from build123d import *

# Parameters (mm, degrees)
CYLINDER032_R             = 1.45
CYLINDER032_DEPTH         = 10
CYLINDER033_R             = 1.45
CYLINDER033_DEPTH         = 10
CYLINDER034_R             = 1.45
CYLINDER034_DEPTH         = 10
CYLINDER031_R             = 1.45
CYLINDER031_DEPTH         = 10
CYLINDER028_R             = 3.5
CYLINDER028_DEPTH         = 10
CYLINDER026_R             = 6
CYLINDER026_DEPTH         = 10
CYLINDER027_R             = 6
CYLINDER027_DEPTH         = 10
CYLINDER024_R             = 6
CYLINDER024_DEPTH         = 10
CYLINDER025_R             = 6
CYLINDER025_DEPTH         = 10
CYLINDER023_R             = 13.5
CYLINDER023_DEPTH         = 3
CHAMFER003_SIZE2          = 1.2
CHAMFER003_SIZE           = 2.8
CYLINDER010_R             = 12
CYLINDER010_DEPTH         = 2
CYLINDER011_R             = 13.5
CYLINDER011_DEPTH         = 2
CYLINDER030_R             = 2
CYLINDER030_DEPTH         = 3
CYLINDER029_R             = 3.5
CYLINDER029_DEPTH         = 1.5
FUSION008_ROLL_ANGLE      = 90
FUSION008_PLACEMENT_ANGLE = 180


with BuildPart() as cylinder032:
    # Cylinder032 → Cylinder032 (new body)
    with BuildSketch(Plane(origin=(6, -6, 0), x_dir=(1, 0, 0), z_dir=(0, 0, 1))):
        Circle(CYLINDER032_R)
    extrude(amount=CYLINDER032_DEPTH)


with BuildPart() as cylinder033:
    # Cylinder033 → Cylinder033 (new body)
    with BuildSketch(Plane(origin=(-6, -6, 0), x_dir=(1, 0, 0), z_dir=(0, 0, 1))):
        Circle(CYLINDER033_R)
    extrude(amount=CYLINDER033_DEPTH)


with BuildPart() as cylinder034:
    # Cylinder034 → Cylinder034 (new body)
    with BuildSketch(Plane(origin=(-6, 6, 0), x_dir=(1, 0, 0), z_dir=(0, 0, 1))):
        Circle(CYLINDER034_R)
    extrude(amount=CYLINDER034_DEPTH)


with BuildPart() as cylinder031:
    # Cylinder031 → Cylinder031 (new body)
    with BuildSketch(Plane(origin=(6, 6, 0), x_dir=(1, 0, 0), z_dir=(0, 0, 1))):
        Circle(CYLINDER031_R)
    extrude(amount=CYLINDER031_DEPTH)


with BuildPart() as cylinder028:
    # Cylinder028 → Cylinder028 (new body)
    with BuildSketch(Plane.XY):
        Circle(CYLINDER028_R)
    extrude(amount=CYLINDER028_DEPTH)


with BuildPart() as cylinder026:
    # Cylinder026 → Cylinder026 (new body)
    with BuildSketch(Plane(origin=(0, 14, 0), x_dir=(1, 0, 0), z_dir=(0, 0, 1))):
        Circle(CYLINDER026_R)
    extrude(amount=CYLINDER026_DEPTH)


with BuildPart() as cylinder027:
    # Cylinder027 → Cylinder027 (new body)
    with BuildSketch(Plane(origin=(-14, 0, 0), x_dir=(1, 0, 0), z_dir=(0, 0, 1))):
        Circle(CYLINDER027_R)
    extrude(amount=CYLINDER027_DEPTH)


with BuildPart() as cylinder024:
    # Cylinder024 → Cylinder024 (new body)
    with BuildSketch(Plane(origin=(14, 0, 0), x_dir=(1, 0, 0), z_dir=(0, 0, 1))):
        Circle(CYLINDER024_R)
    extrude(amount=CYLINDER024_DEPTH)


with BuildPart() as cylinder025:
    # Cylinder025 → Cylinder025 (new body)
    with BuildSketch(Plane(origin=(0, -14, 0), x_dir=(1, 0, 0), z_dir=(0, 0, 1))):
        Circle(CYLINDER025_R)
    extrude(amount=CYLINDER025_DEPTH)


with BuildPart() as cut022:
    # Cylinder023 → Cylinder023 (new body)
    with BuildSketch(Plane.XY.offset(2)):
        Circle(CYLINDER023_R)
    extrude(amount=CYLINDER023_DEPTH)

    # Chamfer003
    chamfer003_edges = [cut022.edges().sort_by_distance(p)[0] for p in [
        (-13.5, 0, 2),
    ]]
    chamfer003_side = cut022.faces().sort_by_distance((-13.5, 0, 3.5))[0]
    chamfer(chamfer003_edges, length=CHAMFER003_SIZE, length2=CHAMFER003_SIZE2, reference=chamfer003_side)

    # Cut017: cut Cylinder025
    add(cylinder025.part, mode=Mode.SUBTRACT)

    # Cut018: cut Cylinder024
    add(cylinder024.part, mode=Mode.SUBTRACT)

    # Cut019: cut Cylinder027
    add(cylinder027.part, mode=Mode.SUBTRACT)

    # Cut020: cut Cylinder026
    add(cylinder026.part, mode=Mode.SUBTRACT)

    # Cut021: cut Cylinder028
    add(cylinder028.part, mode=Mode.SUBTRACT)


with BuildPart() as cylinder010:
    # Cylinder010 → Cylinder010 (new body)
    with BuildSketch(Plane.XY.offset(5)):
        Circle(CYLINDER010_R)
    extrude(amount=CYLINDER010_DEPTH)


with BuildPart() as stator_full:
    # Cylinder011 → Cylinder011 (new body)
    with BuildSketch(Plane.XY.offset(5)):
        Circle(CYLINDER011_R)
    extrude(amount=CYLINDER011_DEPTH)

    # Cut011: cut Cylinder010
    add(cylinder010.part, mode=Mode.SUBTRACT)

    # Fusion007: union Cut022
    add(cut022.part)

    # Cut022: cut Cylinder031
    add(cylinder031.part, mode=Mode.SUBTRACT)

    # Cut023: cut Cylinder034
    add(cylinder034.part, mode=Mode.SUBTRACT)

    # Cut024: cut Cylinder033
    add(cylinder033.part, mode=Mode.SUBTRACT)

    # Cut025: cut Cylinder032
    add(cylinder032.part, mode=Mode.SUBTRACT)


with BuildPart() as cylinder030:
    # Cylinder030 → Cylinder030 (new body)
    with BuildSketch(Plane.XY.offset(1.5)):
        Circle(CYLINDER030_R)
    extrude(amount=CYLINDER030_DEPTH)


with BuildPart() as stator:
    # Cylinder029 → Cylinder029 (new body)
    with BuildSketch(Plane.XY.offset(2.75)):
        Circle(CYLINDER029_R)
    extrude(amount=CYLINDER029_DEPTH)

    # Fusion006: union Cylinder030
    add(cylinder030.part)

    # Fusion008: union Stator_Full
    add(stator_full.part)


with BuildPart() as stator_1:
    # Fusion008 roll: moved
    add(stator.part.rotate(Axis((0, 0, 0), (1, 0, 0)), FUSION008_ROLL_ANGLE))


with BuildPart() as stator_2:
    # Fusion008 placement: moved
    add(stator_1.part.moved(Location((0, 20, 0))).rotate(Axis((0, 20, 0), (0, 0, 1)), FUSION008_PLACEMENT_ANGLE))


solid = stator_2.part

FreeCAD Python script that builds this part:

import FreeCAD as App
import Part
import Sketcher


def edges_at(feature, points):
    """Names of the edges that pass closest to the given points."""
    edges = feature.Shape.Edges
    near = lambda p: min(range(len(edges)), key=lambda i: edges[i].distToShape(Part.Vertex(*p))[0])
    return sorted({f"Edge{near(p) + 1}" for p in points})

doc = App.newDocument("Part")
params = doc.addObject("Spreadsheet::Sheet", "Params")
for row, (alias, value) in enumerate([
    ("sketch1_diameter", "2.9 mm"),
    ("pad1_length", "10 mm"),
    ("sketch2_diameter", "2.9 mm"),
    ("pad2_length", "10 mm"),
    ("sketch3_diameter", "2.9 mm"),
    ("pad3_length", "10 mm"),
    ("sketch4_diameter", "2.9 mm"),
    ("pad4_length", "10 mm"),
    ("sketch5_diameter", "7 mm"),
    ("pad5_length", "10 mm"),
    ("sketch6_diameter", "12 mm"),
    ("pad6_length", "10 mm"),
    ("sketch7_diameter", "12 mm"),
    ("pad7_length", "10 mm"),
    ("sketch8_diameter", "12 mm"),
    ("pad8_length", "10 mm"),
    ("sketch9_diameter", "12 mm"),
    ("pad9_length", "10 mm"),
    ("sketch10_diameter", "27 mm"),
    ("pad10_length", "3 mm"),
    ("chamfer_size", "2.8 mm"),
    ("chamfer_size2", "1.2 mm"),
    ("sketch11_diameter", "24 mm"),
    ("pad11_length", "2 mm"),
    ("sketch12_diameter", "27 mm"),
    ("pad12_length", "2 mm"),
    ("sketch13_diameter", "4 mm"),
    ("pad13_length", "3 mm"),
    ("sketch14_diameter", "7 mm"),
    ("pad14_length", "1.5 mm"),
], start=1):
    params.set(f"A{row}", alias)
    params.set(f"B{row}", "=" + value)
    params.setAlias(f"B{row}", alias)

body = doc.addObject("PartDesign::Body", "Body")

sketch1 = body.newObject("Sketcher::SketchObject", "Sketch")
sketch1.AttachmentSupport = (doc.getObject("XY_Plane"), [""])
sketch1.MapMode = "FlatFace"
sketch1.addGeometry(Part.Circle(App.Vector(6, -6, 0), App.Vector(0, 0, 1), 1.45), False)
sketch1.addConstraint([
    Sketcher.Constraint("Diameter", 0, 2.9),
    Sketcher.Constraint("DistanceX", -1, 1, 0, 3, 6.0),
    Sketcher.Constraint("DistanceY", 0, 3, -1, 1, 6.0),
])
sketch1.setExpression("Constraints[0]", "Params.sketch1_diameter")
pad1 = body.newObject("PartDesign::Pad", "Pad")
pad1.Profile = sketch1
pad1.setExpression("Length", "Params.pad1_length")
body2 = doc.addObject("PartDesign::Body", "Body001")

sketch2 = body2.newObject("Sketcher::SketchObject", "Sketch001")
sketch2.AttachmentSupport = (doc.getObject("XY_Plane001"), [""])
sketch2.MapMode = "FlatFace"
sketch2.addGeometry(Part.Circle(App.Vector(-6, -6, 0), App.Vector(0, 0, 1), 1.45), False)
sketch2.addConstraint([
    Sketcher.Constraint("Diameter", 0, 2.9),
    Sketcher.Constraint("DistanceX", 0, 3, -1, 1, 6.0),
    Sketcher.Constraint("DistanceY", 0, 3, -1, 1, 6.0),
])
sketch2.setExpression("Constraints[0]", "Params.sketch2_diameter")
pad2 = body2.newObject("PartDesign::Pad", "Pad001")
pad2.Profile = sketch2
pad2.setExpression("Length", "Params.pad2_length")
body3 = doc.addObject("PartDesign::Body", "Body002")

sketch3 = body3.newObject("Sketcher::SketchObject", "Sketch002")
sketch3.AttachmentSupport = (doc.getObject("XY_Plane002"), [""])
sketch3.MapMode = "FlatFace"
sketch3.addGeometry(Part.Circle(App.Vector(-6, 6, 0), App.Vector(0, 0, 1), 1.45), False)
sketch3.addConstraint([
    Sketcher.Constraint("Diameter", 0, 2.9),
    Sketcher.Constraint("DistanceX", 0, 3, -1, 1, 6.0),
    Sketcher.Constraint("DistanceY", -1, 1, 0, 3, 6.0),
])
sketch3.setExpression("Constraints[0]", "Params.sketch3_diameter")
pad3 = body3.newObject("PartDesign::Pad", "Pad002")
pad3.Profile = sketch3
pad3.setExpression("Length", "Params.pad3_length")
body4 = doc.addObject("PartDesign::Body", "Body003")

sketch4 = body4.newObject("Sketcher::SketchObject", "Sketch003")
sketch4.AttachmentSupport = (doc.getObject("XY_Plane003"), [""])
sketch4.MapMode = "FlatFace"
sketch4.addGeometry(Part.Circle(App.Vector(6, 6, 0), App.Vector(0, 0, 1), 1.45), False)
sketch4.addConstraint([
    Sketcher.Constraint("Diameter", 0, 2.9),
    Sketcher.Constraint("DistanceX", -1, 1, 0, 3, 6.0),
    Sketcher.Constraint("DistanceY", -1, 1, 0, 3, 6.0),
])
sketch4.setExpression("Constraints[0]", "Params.sketch4_diameter")
pad4 = body4.newObject("PartDesign::Pad", "Pad003")
pad4.Profile = sketch4
pad4.setExpression("Length", "Params.pad4_length")
body5 = doc.addObject("PartDesign::Body", "Body004")

sketch5 = body5.newObject("Sketcher::SketchObject", "Sketch004")
sketch5.AttachmentSupport = (doc.getObject("XY_Plane004"), [""])
sketch5.MapMode = "FlatFace"
sketch5.addGeometry(Part.Circle(App.Vector(0, 0, 0), App.Vector(0, 0, 1), 3.5), False)
sketch5.addConstraint([
    Sketcher.Constraint("Coincident", 0, 3, -1, 1),
    Sketcher.Constraint("Diameter", 0, 7.0),
])
sketch5.setExpression("Constraints[1]", "Params.sketch5_diameter")
pad5 = body5.newObject("PartDesign::Pad", "Pad004")
pad5.Profile = sketch5
pad5.setExpression("Length", "Params.pad5_length")
body6 = doc.addObject("PartDesign::Body", "Body005")

sketch6 = body6.newObject("Sketcher::SketchObject", "Sketch005")
sketch6.AttachmentSupport = (doc.getObject("XY_Plane005"), [""])
sketch6.MapMode = "FlatFace"
sketch6.addGeometry(Part.Circle(App.Vector(0, 14, 0), App.Vector(0, 0, 1), 6), False)
sketch6.addConstraint([
    Sketcher.Constraint("PointOnObject", 0, 3, -2),
    Sketcher.Constraint("Diameter", 0, 12.0),
    Sketcher.Constraint("DistanceY", -1, 1, 0, 3, 14.0),
])
sketch6.setExpression("Constraints[1]", "Params.sketch6_diameter")
pad6 = body6.newObject("PartDesign::Pad", "Pad005")
pad6.Profile = sketch6
pad6.setExpression("Length", "Params.pad6_length")
body7 = doc.addObject("PartDesign::Body", "Body006")

sketch7 = body7.newObject("Sketcher::SketchObject", "Sketch006")
sketch7.AttachmentSupport = (doc.getObject("XY_Plane006"), [""])
sketch7.MapMode = "FlatFace"
sketch7.addGeometry(Part.Circle(App.Vector(-14, 0, 0), App.Vector(0, 0, 1), 6), False)
sketch7.addConstraint([
    Sketcher.Constraint("PointOnObject", 0, 3, -1),
    Sketcher.Constraint("Diameter", 0, 12.0),
    Sketcher.Constraint("DistanceX", 0, 3, -1, 1, 14.0),
])
sketch7.setExpression("Constraints[1]", "Params.sketch7_diameter")
pad7 = body7.newObject("PartDesign::Pad", "Pad006")
pad7.Profile = sketch7
pad7.setExpression("Length", "Params.pad7_length")
body8 = doc.addObject("PartDesign::Body", "Body007")

sketch8 = body8.newObject("Sketcher::SketchObject", "Sketch007")
sketch8.AttachmentSupport = (doc.getObject("XY_Plane007"), [""])
sketch8.MapMode = "FlatFace"
sketch8.addGeometry(Part.Circle(App.Vector(14, 0, 0), App.Vector(0, 0, 1), 6), False)
sketch8.addConstraint([
    Sketcher.Constraint("PointOnObject", 0, 3, -1),
    Sketcher.Constraint("Diameter", 0, 12.0),
    Sketcher.Constraint("DistanceX", -1, 1, 0, 3, 14.0),
])
sketch8.setExpression("Constraints[1]", "Params.sketch8_diameter")
pad8 = body8.newObject("PartDesign::Pad", "Pad007")
pad8.Profile = sketch8
pad8.setExpression("Length", "Params.pad8_length")
body9 = doc.addObject("PartDesign::Body", "Body008")

sketch9 = body9.newObject("Sketcher::SketchObject", "Sketch008")
sketch9.AttachmentSupport = (doc.getObject("XY_Plane008"), [""])
sketch9.MapMode = "FlatFace"
sketch9.addGeometry(Part.Circle(App.Vector(0, -14, 0), App.Vector(0, 0, 1), 6), False)
sketch9.addConstraint([
    Sketcher.Constraint("PointOnObject", 0, 3, -2),
    Sketcher.Constraint("Diameter", 0, 12.0),
    Sketcher.Constraint("DistanceY", 0, 3, -1, 1, 14.0),
])
sketch9.setExpression("Constraints[1]", "Params.sketch9_diameter")
pad9 = body9.newObject("PartDesign::Pad", "Pad008")
pad9.Profile = sketch9
pad9.setExpression("Length", "Params.pad9_length")
body10 = doc.addObject("PartDesign::Body", "Body009")

sketch10 = body10.newObject("Sketcher::SketchObject", "Sketch009")
sketch10.AttachmentSupport = (doc.getObject("XY_Plane009"), [""])
sketch10.MapMode = "FlatFace"
sketch10.AttachmentOffset = App.Placement(App.Vector(0, 0, 2), App.Rotation())
sketch10.addGeometry(Part.Circle(App.Vector(0, 0, 0), App.Vector(0, 0, 1), 13.5), False)
sketch10.addConstraint([
    Sketcher.Constraint("Coincident", 0, 3, -1, 1),
    Sketcher.Constraint("Diameter", 0, 27.0),
])
sketch10.setExpression("Constraints[1]", "Params.sketch10_diameter")
pad10 = body10.newObject("PartDesign::Pad", "Pad009")
pad10.Profile = sketch10
pad10.setExpression("Length", "Params.pad10_length")
doc.recompute()

chamfer = body10.newObject("PartDesign::Chamfer", "Chamfer")
chamfer.Base = (pad10, edges_at(pad10, [(-13.5, 0, 2)]))
chamfer.ChamferType = "Two distances"
chamfer.setExpression("Size", "Params.chamfer_size")
chamfer.setExpression("Size2", "Params.chamfer_size2")
doc.recompute()

boolean = body10.newObject("PartDesign::Boolean", "Boolean")
boolean.Type = "Cut"
boolean.addObjects([body9])
doc.recompute()

boolean2 = body10.newObject("PartDesign::Boolean", "Boolean001")
boolean2.Type = "Cut"
boolean2.addObjects([body8])
doc.recompute()

boolean3 = body10.newObject("PartDesign::Boolean", "Boolean002")
boolean3.Type = "Cut"
boolean3.addObjects([body7])
doc.recompute()

boolean4 = body10.newObject("PartDesign::Boolean", "Boolean003")
boolean4.Type = "Cut"
boolean4.addObjects([body6])
doc.recompute()

boolean5 = body10.newObject("PartDesign::Boolean", "Boolean004")
boolean5.Type = "Cut"
boolean5.addObjects([body5])
body11 = doc.addObject("PartDesign::Body", "Body010")

sketch11 = body11.newObject("Sketcher::SketchObject", "Sketch010")
sketch11.AttachmentSupport = (doc.getObject("XY_Plane010"), [""])
sketch11.MapMode = "FlatFace"
sketch11.AttachmentOffset = App.Placement(App.Vector(0, 0, 5), App.Rotation())
sketch11.addGeometry(Part.Circle(App.Vector(0, 0, 0), App.Vector(0, 0, 1), 12), False)
sketch11.addConstraint([
    Sketcher.Constraint("Coincident", 0, 3, -1, 1),
    Sketcher.Constraint("Diameter", 0, 24.0),
])
sketch11.setExpression("Constraints[1]", "Params.sketch11_diameter")
pad11 = body11.newObject("PartDesign::Pad", "Pad010")
pad11.Profile = sketch11
pad11.setExpression("Length", "Params.pad11_length")
body12 = doc.addObject("PartDesign::Body", "Body011")

sketch12 = body12.newObject("Sketcher::SketchObject", "Sketch011")
sketch12.AttachmentSupport = (doc.getObject("XY_Plane011"), [""])
sketch12.MapMode = "FlatFace"
sketch12.AttachmentOffset = App.Placement(App.Vector(0, 0, 5), App.Rotation())
sketch12.addGeometry(Part.Circle(App.Vector(0, 0, 0), App.Vector(0, 0, 1), 13.5), False)
sketch12.addConstraint([
    Sketcher.Constraint("Coincident", 0, 3, -1, 1),
    Sketcher.Constraint("Diameter", 0, 27.0),
])
sketch12.setExpression("Constraints[1]", "Params.sketch12_diameter")
pad12 = body12.newObject("PartDesign::Pad", "Pad011")
pad12.Profile = sketch12
pad12.setExpression("Length", "Params.pad12_length")
doc.recompute()

boolean6 = body12.newObject("PartDesign::Boolean", "Boolean005")
boolean6.Type = "Cut"
boolean6.addObjects([body11])
doc.recompute()

boolean7 = body12.newObject("PartDesign::Boolean", "Boolean006")
boolean7.Type = "Fuse"
boolean7.addObjects([body10])
doc.recompute()

boolean8 = body12.newObject("PartDesign::Boolean", "Boolean007")
boolean8.Type = "Cut"
boolean8.addObjects([body4])
doc.recompute()

boolean9 = body12.newObject("PartDesign::Boolean", "Boolean008")
boolean9.Type = "Cut"
boolean9.addObjects([body3])
doc.recompute()

boolean10 = body12.newObject("PartDesign::Boolean", "Boolean009")
boolean10.Type = "Cut"
boolean10.addObjects([body2])
doc.recompute()

boolean11 = body12.newObject("PartDesign::Boolean", "Boolean010")
boolean11.Type = "Cut"
boolean11.addObjects([body])
body13 = doc.addObject("PartDesign::Body", "Body012")

sketch13 = body13.newObject("Sketcher::SketchObject", "Sketch012")
sketch13.AttachmentSupport = (doc.getObject("XY_Plane012"), [""])
sketch13.MapMode = "FlatFace"
sketch13.AttachmentOffset = App.Placement(App.Vector(0, 0, 1.5), App.Rotation())
sketch13.addGeometry(Part.Circle(App.Vector(0, 0, 0), App.Vector(0, 0, 1), 2), False)
sketch13.addConstraint([
    Sketcher.Constraint("Coincident", 0, 3, -1, 1),
    Sketcher.Constraint("Diameter", 0, 4.0),
])
sketch13.setExpression("Constraints[1]", "Params.sketch13_diameter")
pad13 = body13.newObject("PartDesign::Pad", "Pad012")
pad13.Profile = sketch13
pad13.setExpression("Length", "Params.pad13_length")
body14 = doc.addObject("PartDesign::Body", "Body013")

sketch14 = body14.newObject("Sketcher::SketchObject", "Sketch013")
sketch14.AttachmentSupport = (doc.getObject("XY_Plane013"), [""])
sketch14.MapMode = "FlatFace"
sketch14.AttachmentOffset = App.Placement(App.Vector(0, 0, 2.75), App.Rotation())
sketch14.addGeometry(Part.Circle(App.Vector(0, 0, 0), App.Vector(0, 0, 1), 3.5), False)
sketch14.addConstraint([
    Sketcher.Constraint("Coincident", 0, 3, -1, 1),
    Sketcher.Constraint("Diameter", 0, 7.0),
])
sketch14.setExpression("Constraints[1]", "Params.sketch14_diameter")
pad14 = body14.newObject("PartDesign::Pad", "Pad013")
pad14.Profile = sketch14
pad14.setExpression("Length", "Params.pad14_length")
doc.recompute()

boolean12 = body14.newObject("PartDesign::Boolean", "Boolean011")
boolean12.Type = "Fuse"
boolean12.addObjects([body13])
doc.recompute()

boolean13 = body14.newObject("PartDesign::Boolean", "Boolean012")
boolean13.Type = "Fuse"
boolean13.addObjects([body12])
body15 = doc.addObject("PartDesign::Body", "Body014")
doc.recompute()

body14.Placement = App.Placement(App.Vector(0, 0, 0), App.Rotation(App.Vector(1, 0, 0), 90))
boolean14 = body15.newObject("PartDesign::Boolean", "Boolean013")
boolean14.Type = "Fuse"
boolean14.addObjects([body14])
body16 = doc.addObject("PartDesign::Body", "Body015")
doc.recompute()

body15.Placement = App.Placement(App.Vector(0, 20, 0), App.Rotation(App.Vector(0, 0, 1), 180))
boolean15 = body16.newObject("PartDesign::Boolean", "Boolean014")
boolean15.Type = "Fuse"
boolean15.addObjects([body15])

doc.recompute()
